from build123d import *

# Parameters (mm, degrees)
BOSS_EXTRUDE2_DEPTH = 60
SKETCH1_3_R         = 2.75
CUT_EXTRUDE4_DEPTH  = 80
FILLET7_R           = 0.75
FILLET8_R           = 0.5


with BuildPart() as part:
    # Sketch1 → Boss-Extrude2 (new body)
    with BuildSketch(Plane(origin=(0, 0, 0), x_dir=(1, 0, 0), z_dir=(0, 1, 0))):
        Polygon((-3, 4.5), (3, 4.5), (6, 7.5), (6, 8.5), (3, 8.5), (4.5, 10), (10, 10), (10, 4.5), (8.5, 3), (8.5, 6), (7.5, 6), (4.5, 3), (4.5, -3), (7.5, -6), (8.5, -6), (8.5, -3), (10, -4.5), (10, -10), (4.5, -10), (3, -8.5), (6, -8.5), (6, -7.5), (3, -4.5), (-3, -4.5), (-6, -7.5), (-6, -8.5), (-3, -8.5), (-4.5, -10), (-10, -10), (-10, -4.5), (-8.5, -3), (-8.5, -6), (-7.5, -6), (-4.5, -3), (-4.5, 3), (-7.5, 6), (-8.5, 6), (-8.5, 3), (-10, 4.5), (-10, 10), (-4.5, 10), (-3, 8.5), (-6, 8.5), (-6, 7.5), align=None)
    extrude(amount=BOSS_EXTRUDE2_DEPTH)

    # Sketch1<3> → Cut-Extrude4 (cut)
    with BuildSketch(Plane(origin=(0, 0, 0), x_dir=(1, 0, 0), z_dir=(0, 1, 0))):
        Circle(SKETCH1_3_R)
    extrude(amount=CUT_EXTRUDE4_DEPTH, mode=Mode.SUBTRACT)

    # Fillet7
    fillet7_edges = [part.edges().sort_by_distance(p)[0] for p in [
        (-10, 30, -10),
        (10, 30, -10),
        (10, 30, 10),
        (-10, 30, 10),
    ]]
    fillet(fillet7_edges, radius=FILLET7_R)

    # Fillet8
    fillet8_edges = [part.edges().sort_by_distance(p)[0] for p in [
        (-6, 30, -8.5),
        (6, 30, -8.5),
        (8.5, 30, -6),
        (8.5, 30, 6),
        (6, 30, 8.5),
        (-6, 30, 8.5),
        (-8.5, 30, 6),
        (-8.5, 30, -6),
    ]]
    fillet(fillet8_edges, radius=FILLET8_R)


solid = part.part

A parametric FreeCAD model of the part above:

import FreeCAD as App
import Part
import Sketcher

V = App.Vector


def edges_at(feature, points):
    """Names of the edges that pass closest to the given points."""
    edges = feature.Shape.Edges
    near = lambda p: min(range(len(edges)), key=lambda i: edges[i].distToShape(Part.Vertex(*p))[0])
    return sorted({f"Edge{near(p) + 1}" for p in points})


def add_polygon(sketch, points):
    """Adds a closed chain of lines whose ends are joined by coincident constraints."""
    first, n = sketch.GeometryCount, len(points)
    for a, b in zip(points, points[1:] + points[:1]):
        sketch.addGeometry(Part.LineSegment(App.Vector(*a, 0), App.Vector(*b, 0)), False)
    for i in range(n):
        sketch.addConstraint(Sketcher.Constraint("Coincident", first + i, 2, first + (i + 1) % n, 1))

doc = App.newDocument("Part")
body = doc.addObject("PartDesign::Body", "Body")

# Sketch on XZ plane
sketch1 = doc.addObject("Sketcher::SketchObject", "Sketch")
body.addObject(sketch1)
sketch1.AttachmentSupport = (doc.XZ_Plane, [""])
sketch1.MapMode = "FlatFace"
add_polygon(sketch1, [(3, -4.5), (-3, -4.5), (-6, -7.5), (-6, -8.5), (-3, -8.5), (-4.5, -10), (-10, -10), (-10, -4.5), (-8.5, -3), (-8.5, -6), (-7.5, -6), (-4.5, -3), (-4.5, 3), (-7.5, 6), (-8.5, 6), (-8.5, 3), (-10, 4.5), (-10, 10), (-4.5, 10), (-3, 8.5), (-6, 8.5), (-6, 7.5), (-3, 4.5), (3, 4.5), (6, 7.5), (6, 8.5), (3, 8.5), (4.5, 10), (10, 10), (10, 4.5), (8.5, 3), (8.5, 6), (7.5, 6), (4.5, 3), (4.5, -3), (7.5, -6), (8.5, -6), (8.5, -3), (10, -4.5), (10, -10), (4.5, -10), (3, -8.5), (6, -8.5), (6, -7.5)])  # lines 0-43
sketch1.addConstraint([
    Sketcher.Constraint("Horizontal", 0),
    Sketcher.Constraint("Vertical", 2),
    Sketcher.Constraint("Horizontal", 3),
    Sketcher.Constraint("Horizontal", 5),
    Sketcher.Constraint("Vertical", 6),
    Sketcher.Constraint("Vertical", 8),
    Sketcher.Constraint("Horizontal", 9),
    Sketcher.Constraint("Vertical", 11),
    Sketcher.Constraint("Horizontal", 13),
    Sketcher.Constraint("Vertical", 14),
    Sketcher.Constraint("Vertical", 16),
    Sketcher.Constraint("Horizontal", 17),
    Sketcher.Constraint("Horizontal", 19),
    Sketcher.Constraint("Vertical", 20),
    Sketcher.Constraint("Horizontal", 22),
    Sketcher.Constraint("Vertical", 24),
    Sketcher.Constraint("Horizontal", 25),
    Sketcher.Constraint("Horizontal", 27),
    Sketcher.Constraint("Vertical", 28),
    Sketcher.Constraint("Vertical", 30),
    Sketcher.Constraint("Horizontal", 31),
    Sketcher.Constraint("Vertical", 33),
    Sketcher.Constraint("Horizontal", 35),
    Sketcher.Constraint("Vertical", 36),
    Sketcher.Constraint("Vertical", 38),
    Sketcher.Constraint("Horizontal", 39),
    Sketcher.Constraint("Horizontal", 41),
    Sketcher.Constraint("Vertical", 42),
    Sketcher.Constraint("Symmetric", 0, 2, 22, 2, -1, 1),
    Sketcher.Constraint("Symmetric", 1, 2, 23, 2, -1, 1),
    Sketcher.Constraint("Symmetric", 3, 2, 25, 2, -1, 1),
    Sketcher.Constraint("Symmetric", 4, 2, 26, 2, -1, 1),
    Sketcher.Constraint("Symmetric", 6, 2, 28, 2, -1, 1),
    Sketcher.Constraint("Symmetric", 7, 2, 29, 2, -1, 1),
    Sketcher.Constraint("Symmetric", 9, 2, 31, 2, -1, 1),
    Sketcher.Constraint("Symmetric", 10, 2, 32, 2, -1, 1),
    Sketcher.Constraint("Symmetric", 12, 2, 34, 2, -1, 1),
    Sketcher.Constraint("Symmetric", 14, 2, 36, 2, -1, 1),
    Sketcher.Constraint("Symmetric", 15, 2, 37, 2, -1, 1),
    Sketcher.Constraint("Symmetric", 17, 2, 39, 2, -1, 1),
    Sketcher.Constraint("Symmetric", 18, 2, 40, 2, -1, 1),
    Sketcher.Constraint("Symmetric", 20, 2, 42, 2, -1, 1),
    Sketcher.Constraint("Symmetric", 20, 2, 23, 2, -2),
    Sketcher.Constraint("Symmetric", 18, 2, 25, 2, -2),
    Sketcher.Constraint("Symmetric", 17, 2, 26, 2, -2),
    Sketcher.Constraint("Symmetric", 15, 2, 28, 2, -2),
    Sketcher.Constraint("Symmetric", 14, 2, 29, 2, -2),
    Sketcher.Constraint("Symmetric", 12, 2, 31, 2, -2),
    Sketcher.Constraint("Parallel", 1, 4),
    Sketcher.Constraint("Parallel", 4, 7),
    Sketcher.Constraint("Parallel", 7, 10),
    Sketcher.Constraint("Perpendicular", 10, 12),
    Sketcher.Constraint("Parallel", 12, 15),
    Sketcher.Constraint("Parallel", 18, 21),
    Sketcher.Constraint("Perpendicular", 32, 34),
    Sketcher.Constraint("Parallel", 40, 43),
    Sketcher.Constraint("Horizontal", 0, 2, 6, 2),
    Sketcher.Constraint("Horizontal", 7, 2, 10, 2),
    Sketcher.Constraint("Vertical", 0, 2, 3, 2),
    Sketcher.Constraint("Vertical", 4, 2, 10, 2),
    Sketcher.Constraint("Equal", 35, 2),
    Sketcher.Constraint("Equal", 39, 6),
    Sketcher.Constraint("Equal", 41, 8),
    Sketcher.Constraint("Equal", 22, 11),
    Sketcher.Constraint("DistanceX", 0, 2, 0, 1, 6.0),
    Sketcher.Constraint("DistanceX", 3, 1, 3, 2, 3.0),
    Sketcher.Constraint("DistanceX", 9, 1, 9, 2, 1.0),
    Sketcher.Constraint("DistanceX", 5, 2, 5, 1, 5.5),
])
pad1 = doc.addObject("PartDesign::Pad", "Pad")
body.addObject(pad1)
pad1.Profile = sketch1
pad1.Length = 60
pad1.Reversed = True

# Sketch on XZ plane
sketch2 = doc.addObject("Sketcher::SketchObject", "Sketch001")
body.addObject(sketch2)
sketch2.AttachmentSupport = (doc.XZ_Plane, [""])
sketch2.MapMode = "FlatFace"
sketch2.addGeometry(Part.Circle(V(0, 0, 0), V(0, 0, 1), 2.75), False)
sketch2.addConstraint([
    Sketcher.Constraint("Coincident", 0, 3, -1, 1),
    Sketcher.Constraint("Diameter", 0, 5.5),
])
pocket1 = doc.addObject("PartDesign::Pocket", "Pocket")
body.addObject(pocket1)
pocket1.Profile = sketch2
pocket1.Length = 80
doc.recompute()

fillet = doc.addObject("PartDesign::Fillet", "Fillet")
body.addObject(fillet)
fillet.Base = (pocket1, edges_at(pocket1, [
    (-10, 30, -10),
    (10, 30, -10),
    (10, 30, 10),
    (-10, 30, 10),
]))
fillet.Radius = 0.75
doc.recompute()

fillet2 = doc.addObject("PartDesign::Fillet", "Fillet001")
body.addObject(fillet2)
fillet2.Base = (fillet, edges_at(fillet, [
    (-6, 30, -8.5),
    (6, 30, -8.5),
    (8.5, 30, -6),
    (8.5, 30, 6),
    (6, 30, 8.5),
    (-6, 30, 8.5),
    (-8.5, 30, 6),
    (-8.5, 30, -6),
]))
fillet2.Radius = 0.5

doc.recompute()
